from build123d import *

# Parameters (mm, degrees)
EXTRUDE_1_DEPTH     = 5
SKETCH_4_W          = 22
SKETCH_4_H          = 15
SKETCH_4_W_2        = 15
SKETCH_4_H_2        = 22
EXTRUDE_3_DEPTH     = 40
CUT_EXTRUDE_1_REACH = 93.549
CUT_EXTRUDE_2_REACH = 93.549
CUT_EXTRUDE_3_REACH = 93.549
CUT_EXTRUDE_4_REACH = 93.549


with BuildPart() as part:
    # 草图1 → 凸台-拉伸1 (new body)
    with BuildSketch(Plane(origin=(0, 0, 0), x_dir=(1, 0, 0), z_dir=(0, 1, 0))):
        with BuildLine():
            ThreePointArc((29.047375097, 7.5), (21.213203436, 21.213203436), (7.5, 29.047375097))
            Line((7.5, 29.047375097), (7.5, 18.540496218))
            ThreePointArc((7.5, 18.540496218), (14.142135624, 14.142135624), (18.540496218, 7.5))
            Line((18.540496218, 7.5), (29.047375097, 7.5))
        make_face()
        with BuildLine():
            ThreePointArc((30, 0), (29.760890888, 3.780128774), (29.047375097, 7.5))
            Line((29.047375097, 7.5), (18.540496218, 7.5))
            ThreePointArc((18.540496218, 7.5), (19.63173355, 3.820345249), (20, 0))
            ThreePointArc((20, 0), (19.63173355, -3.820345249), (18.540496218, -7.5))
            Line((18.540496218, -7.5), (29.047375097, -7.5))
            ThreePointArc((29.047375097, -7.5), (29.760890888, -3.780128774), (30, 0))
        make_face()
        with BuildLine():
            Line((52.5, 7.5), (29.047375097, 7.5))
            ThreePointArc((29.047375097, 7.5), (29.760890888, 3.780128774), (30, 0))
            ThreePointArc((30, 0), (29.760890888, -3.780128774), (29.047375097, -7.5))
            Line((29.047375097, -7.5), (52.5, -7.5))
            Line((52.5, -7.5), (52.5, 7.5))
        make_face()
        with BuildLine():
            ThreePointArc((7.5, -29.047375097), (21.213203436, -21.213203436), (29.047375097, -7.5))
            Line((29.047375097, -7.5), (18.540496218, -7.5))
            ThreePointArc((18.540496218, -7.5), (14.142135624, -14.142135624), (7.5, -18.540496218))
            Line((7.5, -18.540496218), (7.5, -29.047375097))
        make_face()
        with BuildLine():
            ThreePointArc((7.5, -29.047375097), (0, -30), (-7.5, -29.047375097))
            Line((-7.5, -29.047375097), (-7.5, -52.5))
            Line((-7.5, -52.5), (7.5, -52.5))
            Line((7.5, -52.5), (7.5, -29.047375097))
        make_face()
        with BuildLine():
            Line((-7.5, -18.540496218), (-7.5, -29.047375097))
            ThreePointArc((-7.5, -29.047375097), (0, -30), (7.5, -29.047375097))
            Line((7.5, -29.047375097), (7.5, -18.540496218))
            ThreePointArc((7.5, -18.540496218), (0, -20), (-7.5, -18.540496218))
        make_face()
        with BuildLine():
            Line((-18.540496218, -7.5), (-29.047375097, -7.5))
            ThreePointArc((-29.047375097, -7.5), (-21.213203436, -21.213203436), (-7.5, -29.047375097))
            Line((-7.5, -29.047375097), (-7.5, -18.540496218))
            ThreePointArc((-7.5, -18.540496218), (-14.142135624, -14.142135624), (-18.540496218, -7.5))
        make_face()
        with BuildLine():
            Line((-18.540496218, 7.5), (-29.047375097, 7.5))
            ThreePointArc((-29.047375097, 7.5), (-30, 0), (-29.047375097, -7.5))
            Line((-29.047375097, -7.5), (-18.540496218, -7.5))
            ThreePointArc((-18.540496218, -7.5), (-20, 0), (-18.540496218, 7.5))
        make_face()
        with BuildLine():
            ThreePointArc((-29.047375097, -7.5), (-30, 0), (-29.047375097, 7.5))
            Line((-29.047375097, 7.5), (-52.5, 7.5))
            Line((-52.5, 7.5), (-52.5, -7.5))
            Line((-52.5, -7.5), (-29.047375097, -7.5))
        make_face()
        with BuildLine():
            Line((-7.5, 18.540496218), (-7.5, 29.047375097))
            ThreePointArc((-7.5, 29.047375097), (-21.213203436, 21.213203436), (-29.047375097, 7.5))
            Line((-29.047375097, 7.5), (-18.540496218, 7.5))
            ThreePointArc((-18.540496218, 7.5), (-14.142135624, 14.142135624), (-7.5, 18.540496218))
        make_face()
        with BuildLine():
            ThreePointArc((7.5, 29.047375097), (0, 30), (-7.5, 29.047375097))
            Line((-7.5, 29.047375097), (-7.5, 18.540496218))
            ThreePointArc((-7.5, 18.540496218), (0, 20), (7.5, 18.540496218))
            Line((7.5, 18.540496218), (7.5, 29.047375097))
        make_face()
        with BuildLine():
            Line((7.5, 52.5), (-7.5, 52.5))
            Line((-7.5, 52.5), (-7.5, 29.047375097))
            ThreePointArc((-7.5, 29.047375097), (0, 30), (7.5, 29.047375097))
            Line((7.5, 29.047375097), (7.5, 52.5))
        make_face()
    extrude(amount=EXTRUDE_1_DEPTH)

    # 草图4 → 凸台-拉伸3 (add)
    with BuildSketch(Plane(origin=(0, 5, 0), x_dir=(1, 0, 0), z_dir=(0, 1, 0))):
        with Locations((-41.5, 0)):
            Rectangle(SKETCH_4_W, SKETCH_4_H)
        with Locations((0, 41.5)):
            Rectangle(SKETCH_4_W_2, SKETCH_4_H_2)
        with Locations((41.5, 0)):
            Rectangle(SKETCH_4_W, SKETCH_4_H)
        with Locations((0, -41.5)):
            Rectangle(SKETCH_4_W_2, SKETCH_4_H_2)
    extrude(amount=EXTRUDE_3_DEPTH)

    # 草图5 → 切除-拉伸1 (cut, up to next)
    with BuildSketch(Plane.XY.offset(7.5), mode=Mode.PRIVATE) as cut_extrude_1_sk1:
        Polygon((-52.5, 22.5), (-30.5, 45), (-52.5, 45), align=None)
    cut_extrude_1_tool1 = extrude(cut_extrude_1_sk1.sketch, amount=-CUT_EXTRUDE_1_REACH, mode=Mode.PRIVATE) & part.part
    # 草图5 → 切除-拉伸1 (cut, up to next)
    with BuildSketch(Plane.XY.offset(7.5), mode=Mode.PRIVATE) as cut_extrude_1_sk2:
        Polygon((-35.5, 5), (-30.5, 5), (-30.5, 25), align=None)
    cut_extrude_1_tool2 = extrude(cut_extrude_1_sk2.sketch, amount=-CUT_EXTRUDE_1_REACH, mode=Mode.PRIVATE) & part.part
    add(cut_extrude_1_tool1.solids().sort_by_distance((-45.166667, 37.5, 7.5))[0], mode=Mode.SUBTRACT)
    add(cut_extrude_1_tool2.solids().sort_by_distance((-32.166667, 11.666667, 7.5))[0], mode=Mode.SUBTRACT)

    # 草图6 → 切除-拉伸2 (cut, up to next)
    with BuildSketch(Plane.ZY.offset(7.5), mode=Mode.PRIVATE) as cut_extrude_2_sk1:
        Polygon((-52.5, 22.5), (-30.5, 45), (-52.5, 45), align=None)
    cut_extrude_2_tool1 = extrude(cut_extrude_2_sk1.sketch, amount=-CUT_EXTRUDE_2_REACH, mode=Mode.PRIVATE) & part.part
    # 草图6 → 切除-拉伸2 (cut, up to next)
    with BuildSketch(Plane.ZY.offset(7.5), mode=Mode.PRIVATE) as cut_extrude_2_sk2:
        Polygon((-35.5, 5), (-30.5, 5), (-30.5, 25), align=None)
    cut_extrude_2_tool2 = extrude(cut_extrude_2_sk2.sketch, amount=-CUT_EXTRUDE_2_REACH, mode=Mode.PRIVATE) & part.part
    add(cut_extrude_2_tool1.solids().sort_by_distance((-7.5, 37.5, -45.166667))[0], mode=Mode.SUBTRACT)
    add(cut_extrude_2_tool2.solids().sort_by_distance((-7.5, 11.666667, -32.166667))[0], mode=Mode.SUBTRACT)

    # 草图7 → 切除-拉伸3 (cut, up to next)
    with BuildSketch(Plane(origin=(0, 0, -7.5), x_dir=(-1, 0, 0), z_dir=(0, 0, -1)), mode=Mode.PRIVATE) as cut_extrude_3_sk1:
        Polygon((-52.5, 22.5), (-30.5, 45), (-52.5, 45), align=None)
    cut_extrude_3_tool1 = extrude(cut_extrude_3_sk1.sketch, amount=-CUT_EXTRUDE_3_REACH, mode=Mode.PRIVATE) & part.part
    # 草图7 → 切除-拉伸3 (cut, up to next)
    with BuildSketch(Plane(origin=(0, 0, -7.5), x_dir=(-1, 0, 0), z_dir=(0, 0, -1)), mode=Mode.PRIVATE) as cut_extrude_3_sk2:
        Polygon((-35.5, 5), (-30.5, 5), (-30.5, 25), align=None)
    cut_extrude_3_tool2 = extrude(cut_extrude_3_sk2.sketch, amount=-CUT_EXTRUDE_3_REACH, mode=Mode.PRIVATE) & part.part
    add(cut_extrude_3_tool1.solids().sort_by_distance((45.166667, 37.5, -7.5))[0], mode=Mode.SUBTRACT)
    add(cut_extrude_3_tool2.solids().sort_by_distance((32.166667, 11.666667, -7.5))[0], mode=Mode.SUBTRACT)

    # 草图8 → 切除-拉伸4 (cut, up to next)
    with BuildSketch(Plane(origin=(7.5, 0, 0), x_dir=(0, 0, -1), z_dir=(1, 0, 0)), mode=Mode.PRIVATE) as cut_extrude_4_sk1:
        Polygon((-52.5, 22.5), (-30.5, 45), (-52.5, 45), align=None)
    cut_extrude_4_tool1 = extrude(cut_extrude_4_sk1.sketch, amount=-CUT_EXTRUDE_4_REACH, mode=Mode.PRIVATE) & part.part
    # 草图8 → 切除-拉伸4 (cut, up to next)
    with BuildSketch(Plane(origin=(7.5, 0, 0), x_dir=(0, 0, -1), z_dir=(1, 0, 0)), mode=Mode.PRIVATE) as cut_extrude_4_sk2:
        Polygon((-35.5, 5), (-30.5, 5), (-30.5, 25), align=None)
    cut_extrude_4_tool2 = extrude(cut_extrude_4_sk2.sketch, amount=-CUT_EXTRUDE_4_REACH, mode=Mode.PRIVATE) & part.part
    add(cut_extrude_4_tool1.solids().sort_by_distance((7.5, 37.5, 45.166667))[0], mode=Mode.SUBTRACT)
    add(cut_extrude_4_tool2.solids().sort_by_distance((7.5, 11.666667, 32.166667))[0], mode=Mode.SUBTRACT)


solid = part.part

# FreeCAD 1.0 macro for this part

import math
import FreeCAD as App
import Part
import Sketcher
Q = App.Units.Quantity


def add_polygon(sketch, points):
    """Adds a closed chain of lines whose ends are joined by coincident constraints."""
    first, n = sketch.GeometryCount, len(points)
    for a, b in zip(points, points[1:] + points[:1]):
        sketch.addGeometry(Part.LineSegment(App.Vector(*a, 0), App.Vector(*b, 0)), False)
    for i in range(n):
        sketch.addConstraint(Sketcher.Constraint("Coincident", first + i, 2, first + (i + 1) % n, 1))

doc = App.newDocument("Part")
body = doc.addObject("PartDesign::Body", "Body")

# Sketch on XZ plane
sketch1 = doc.addObject("Sketcher::SketchObject", "Sketch")
body.addObject(sketch1)
sketch1.AttachmentSupport = (doc.XZ_Plane, [""])
sketch1.MapMode = "FlatFace"
sketch1.addGeometry([
    Part.ArcOfCircle(Part.Circle(App.Vector(0, 0, 0), App.Vector(0, 0, 1), 30), math.radians(-76), math.radians(-14)),  # 0
    Part.LineSegment(App.Vector(8, -29, 0), App.Vector(8, -52, 0)),  # 1
    Part.LineSegment(App.Vector(8, -52, 0), App.Vector(-8, -52, 0)),  # 2
    Part.LineSegment(App.Vector(-8, -52, 0), App.Vector(-8, -29, 0)),  # 3
    Part.ArcOfCircle(Part.Circle(App.Vector(0, 0, 0), App.Vector(0, 0, 1), 30), math.radians(-166), math.radians(-104)),  # 4
    Part.LineSegment(App.Vector(-29, -8, 0), App.Vector(-52, -8, 0)),  # 5
    Part.LineSegment(App.Vector(-52, -8, 0), App.Vector(-52, 8, 0)),  # 6
    Part.LineSegment(App.Vector(-52, 8, 0), App.Vector(-29, 8, 0)),  # 7
    Part.ArcOfCircle(Part.Circle(App.Vector(0, 0, 0), App.Vector(0, 0, 1), 30), math.radians(104), math.radians(166)),  # 8
    Part.LineSegment(App.Vector(-8, 29, 0), App.Vector(-8, 52, 0)),  # 9
    Part.LineSegment(App.Vector(-8, 52, 0), App.Vector(8, 52, 0)),  # 10
    Part.LineSegment(App.Vector(8, 52, 0), App.Vector(8, 29, 0)),  # 11
    Part.ArcOfCircle(Part.Circle(App.Vector(0, 0, 0), App.Vector(0, 0, 1), 30), math.radians(14), math.radians(76)),  # 12
    Part.LineSegment(App.Vector(29, 8, 0), App.Vector(52, 8, 0)),  # 13
    Part.LineSegment(App.Vector(52, 8, 0), App.Vector(52, -8, 0)),  # 14
    Part.LineSegment(App.Vector(52, -8, 0), App.Vector(29, -8, 0)),  # 15
    Part.ArcOfCircle(Part.Circle(App.Vector(0, 0, 0), App.Vector(0, 0, 1), 20), math.radians(-68), math.radians(-22)),  # 16
    Part.ArcOfCircle(Part.Circle(App.Vector(0, 0, 0), App.Vector(0, 0, 1), 20), math.radians(-22), math.radians(0)),  # 17
    Part.ArcOfCircle(Part.Circle(App.Vector(0, 0, 0), App.Vector(0, 0, 1), 20), math.radians(0), math.radians(22)),  # 18
    Part.ArcOfCircle(Part.Circle(App.Vector(0, 0, 0), App.Vector(0, 0, 1), 20), math.radians(22), math.radians(68)),  # 19
    Part.ArcOfCircle(Part.Circle(App.Vector(0, 0, 0), App.Vector(0, 0, 1), 20), math.radians(68), math.radians(112)),  # 20
    Part.ArcOfCircle(Part.Circle(App.Vector(0, 0, 0), App.Vector(0, 0, 1), 20), math.radians(112), math.radians(158)),  # 21
    Part.ArcOfCircle(Part.Circle(App.Vector(0, 0, 0), App.Vector(0, 0, 1), 20), math.radians(158), math.radians(202)),  # 22
    Part.ArcOfCircle(Part.Circle(App.Vector(0, 0, 0), App.Vector(0, 0, 1), 20), math.radians(-158), math.radians(-112)),  # 23
    Part.ArcOfCircle(Part.Circle(App.Vector(0, 0, 0), App.Vector(0, 0, 1), 20), math.radians(-112), math.radians(-68)),  # 24
], False)
sketch1.addConstraint([
    Sketcher.Constraint("Coincident", 0, 1, 1, 1),
    Sketcher.Constraint("Coincident", 1, 2, 2, 1),
    Sketcher.Constraint("Coincident", 2, 2, 3, 1),
    Sketcher.Constraint("Coincident", 3, 2, 4, 2),
    Sketcher.Constraint("Coincident", 4, 1, 5, 1),
    Sketcher.Constraint("Coincident", 5, 2, 6, 1),
    Sketcher.Constraint("Coincident", 6, 2, 7, 1),
    Sketcher.Constraint("Coincident", 7, 2, 8, 2),
    Sketcher.Constraint("Coincident", 8, 1, 9, 1),
    Sketcher.Constraint("Coincident", 9, 2, 10, 1),
    Sketcher.Constraint("Coincident", 10, 2, 11, 1),
    Sketcher.Constraint("Coincident", 11, 2, 12, 2),
    Sketcher.Constraint("Coincident", 12, 1, 13, 1),
    Sketcher.Constraint("Coincident", 13, 2, 14, 1),
    Sketcher.Constraint("Coincident", 14, 2, 15, 1),
    Sketcher.Constraint("Coincident", 15, 2, 0, 2),
    Sketcher.Constraint("Tangent", 16, 2, 17, 1),
    Sketcher.Constraint("Tangent", 17, 2, 18, 1),
    Sketcher.Constraint("Tangent", 18, 2, 19, 1),
    Sketcher.Constraint("Tangent", 19, 2, 20, 1),
    Sketcher.Constraint("Tangent", 20, 2, 21, 1),
    Sketcher.Constraint("Tangent", 21, 2, 22, 1),
    Sketcher.Constraint("Tangent", 22, 2, 23, 1),
    Sketcher.Constraint("Tangent", 23, 2, 24, 1),
    Sketcher.Constraint("Tangent", 24, 2, 16, 1),
    Sketcher.Constraint("Vertical", 1),
    Sketcher.Constraint("Horizontal", 2),
    Sketcher.Constraint("Vertical", 3),
    Sketcher.Constraint("Horizontal", 5),
    Sketcher.Constraint("Vertical", 6),
    Sketcher.Constraint("Horizontal", 7),
    Sketcher.Constraint("Vertical", 9),
    Sketcher.Constraint("Horizontal", 10),
    Sketcher.Constraint("Vertical", 11),
    Sketcher.Constraint("Horizontal", 13),
    Sketcher.Constraint("Vertical", 14),
    Sketcher.Constraint("Horizontal", 15),
    Sketcher.Constraint("Coincident", 0, 3, -1, 1),
    Sketcher.Constraint("Coincident", 4, 3, -1, 1),
    Sketcher.Constraint("Coincident", 8, 3, -1, 1),
    Sketcher.Constraint("Coincident", 12, 3, -1, 1),
    Sketcher.Constraint("Coincident", 16, 3, -1, 1),
    Sketcher.Constraint("Coincident", 18, 3, -1, 1),
    Sketcher.Constraint("Coincident", 20, 3, -1, 1),
    Sketcher.Constraint("Coincident", 22, 3, -1, 1),
    Sketcher.Constraint("Equal", 0, 4),
    Sketcher.Constraint("Equal", 4, 8),
    Sketcher.Constraint("Equal", 8, 12),
    Sketcher.Constraint("Symmetric", 1, 2, 9, 2, -1, 1),
    Sketcher.Constraint("Symmetric", 5, 2, 13, 2, -1, 1),
    Sketcher.Constraint("PointOnObject", 17, 2, -1),
    Sketcher.Constraint("Horizontal", 0, 1, 3, 2),
    Sketcher.Constraint("Horizontal", 8, 1, 11, 2),
    Sketcher.Constraint("Horizontal", 7, 2, 12, 1),
    Sketcher.Constraint("Horizontal", 5, 2, 14, 2),
    Sketcher.Constraint("Horizontal", 15, 2, 16, 2),
    Sketcher.Constraint("Horizontal", 13, 2, 18, 2),
    Sketcher.Constraint("Horizontal", 19, 2, 20, 2),
    Sketcher.Constraint("Horizontal", 18, 2, 21, 2),
    Sketcher.Constraint("Horizontal", 16, 2, 22, 2),
    Sketcher.Constraint("Horizontal", 23, 2, 24, 2),
    Sketcher.Constraint("Vertical", 11, 2, 19, 2),
    Sketcher.Constraint("Vertical", 20, 2, 23, 2),
    Sketcher.Constraint("Equal", 15, 1),
    Sketcher.Constraint("Equal", 10, 6),
    Sketcher.Constraint("Radius", 0, Q("30 mm")),
    Sketcher.Constraint("Radius", 16, Q("20 mm")),
    Sketcher.Constraint("DistanceX", 2, 2, 2, 1, Q("15 mm")),
    Sketcher.Constraint("DistanceX", 5, 2, 3, 2, Q("45 mm")),
])
pad1 = doc.addObject("PartDesign::Pad", "Pad")
body.addObject(pad1)
pad1.Profile = sketch1
pad1.Length = 5
pad1.Reversed = True

# Sketch on XZ plane
sketch2 = doc.addObject("Sketcher::SketchObject", "Sketch001")
body.addObject(sketch2)
sketch2.AttachmentSupport = (doc.XZ_Plane, [""])
sketch2.MapMode = "FlatFace"
sketch2.AttachmentOffset = App.Placement(App.Vector(0, 0, -5), App.Rotation())
add_polygon(sketch2, [(-52, -8), (-52, 8), (-30, 8), (-30, -8)])  # lines 0-3
add_polygon(sketch2, [(-8, -52), (-8, -30), (8, -30), (8, -52)])  # lines 4-7
add_polygon(sketch2, [(30, -8), (30, 8), (52, 8), (52, -8)])  # lines 8-11
add_polygon(sketch2, [(-8, 30), (-8, 52), (8, 52), (8, 30)])  # lines 12-15
sketch2.addConstraint([
    Sketcher.Constraint("Vertical", 0),
    Sketcher.Constraint("Horizontal", 1),
    Sketcher.Constraint("Vertical", 2),
    Sketcher.Constraint("Horizontal", 3),
    Sketcher.Constraint("Vertical", 4),
    Sketcher.Constraint("Horizontal", 5),
    Sketcher.Constraint("Vertical", 6),
    Sketcher.Constraint("Horizontal", 7),
    Sketcher.Constraint("Vertical", 8),
    Sketcher.Constraint("Horizontal", 9),
    Sketcher.Constraint("Vertical", 10),
    Sketcher.Constraint("Horizontal", 11),
    Sketcher.Constraint("Vertical", 12),
    Sketcher.Constraint("Horizontal", 13),
    Sketcher.Constraint("Vertical", 14),
    Sketcher.Constraint("Horizontal", 15),
    Sketcher.Constraint("Symmetric", 2, 2, 8, 2, -1, 1),
    Sketcher.Constraint("Symmetric", 0, 2, 10, 2, -1, 1),
    Sketcher.Constraint("Symmetric", 6, 2, 12, 2, -1, 1),
    Sketcher.Constraint("Symmetric", 4, 2, 14, 2, -1, 1),
    Sketcher.Constraint("Horizontal", 1, 2, 8, 2),
    Sketcher.Constraint("Vertical", 7, 2, 12, 2),
    Sketcher.Constraint("Equal", 15, 0),
    Sketcher.Constraint("Equal", 11, 4),
    Sketcher.Constraint("DistanceX", 1, 1, 1, 2, Q("22 mm")),
    Sketcher.Constraint("DistanceX", 5, 1, 5, 2, Q("15 mm")),
    Sketcher.Constraint("DistanceX", 2, 2, 4, 2, Q("23 mm")),
    Sketcher.Constraint("DistanceY", 4, 2, 2, 2, Q("23 mm")),
])
pad2 = doc.addObject("PartDesign::Pad", "Pad001")
body.addObject(pad2)
pad2.Profile = sketch2
pad2.Length = 40
pad2.Reversed = True

# Sketch on XY plane
sketch3 = doc.addObject("Sketcher::SketchObject", "Sketch002")
body.addObject(sketch3)
sketch3.AttachmentSupport = (doc.XY_Plane, [""])
sketch3.MapMode = "FlatFace"
sketch3.AttachmentOffset = App.Placement(App.Vector(0, 0, 7.5), App.Rotation())
add_polygon(sketch3, [(-52, 22), (-30, 45), (-52, 45)])  # lines 0-2
sketch3.addConstraint([
    Sketcher.Constraint("Horizontal", 1),
    Sketcher.Constraint("Vertical", 2),
    Sketcher.Constraint("DistanceX", 1, 2, 1, 1, Q("22 mm")),
    Sketcher.Constraint("DistanceY", 2, 2, 2, 1, Q("22.5 mm")),
    Sketcher.Constraint("DistanceY", -1, 1, 0, 2, Q("45 mm")),
    Sketcher.Constraint("DistanceX", 0, 2, -1, 1, Q("30.5 mm")),
])
pocket1 = doc.addObject("PartDesign::Pocket", "Pocket")
body.addObject(pocket1)
pocket1.Profile = sketch3
pocket1.Type = "UpToFirst"

# Sketch on XY plane
sketch4 = doc.addObject("Sketcher::SketchObject", "Sketch003")
body.addObject(sketch4)
sketch4.AttachmentSupport = (doc.XY_Plane, [""])
sketch4.MapMode = "FlatFace"
sketch4.AttachmentOffset = App.Placement(App.Vector(0, 0, 7.5), App.Rotation())
add_polygon(sketch4, [(-36, 5), (-30, 5), (-30, 25)])  # lines 0-2
sketch4.addConstraint([
    Sketcher.Constraint("Horizontal", 0),
    Sketcher.Constraint("Vertical", 1),
    Sketcher.Constraint("DistanceX", 0, 1, 0, 2, Q("5 mm")),
    Sketcher.Constraint("DistanceY", 1, 1, 1, 2, Q("20 mm")),
    Sketcher.Constraint("DistanceY", -1, 1, 0, 2, Q("5 mm")),
    Sketcher.Constraint("DistanceX", 0, 2, -1, 1, Q("30.5 mm")),
])
pocket2 = doc.addObject("PartDesign::Pocket", "Pocket001")
body.addObject(pocket2)
pocket2.Profile = sketch4
pocket2.Type = "UpToFirst"

# Sketch on YZ plane
sketch5 = doc.addObject("Sketcher::SketchObject", "Sketch004")
body.addObject(sketch5)
sketch5.AttachmentSupport = (doc.YZ_Plane, [""])
sketch5.MapMode = "FlatFace"
sketch5.AttachmentOffset = App.Placement(App.Vector(0, 0, -7.5), App.Rotation())
add_polygon(sketch5, [(22, -52), (45, -30), (45, -52)])  # lines 0-2
sketch5.addConstraint([
    Sketcher.Constraint("Vertical", 1),
    Sketcher.Constraint("Horizontal", 2),
    Sketcher.Constraint("DistanceY", 1, 2, 1, 1, Q("22 mm")),
    Sketcher.Constraint("DistanceX", 2, 2, 2, 1, Q("22.5 mm")),
    Sketcher.Constraint("DistanceX", -1, 1, 0, 2, Q("45 mm")),
    Sketcher.Constraint("DistanceY", 0, 2, -1, 1, Q("30.5 mm")),
])
pocket3 = doc.addObject("PartDesign::Pocket", "Pocket002")
body.addObject(pocket3)
pocket3.Profile = sketch5
pocket3.Type = "UpToFirst"
pocket3.Reversed = True

# Sketch on YZ plane
sketch6 = doc.addObject("Sketcher::SketchObject", "Sketch005")
body.addObject(sketch6)
sketch6.AttachmentSupport = (doc.YZ_Plane, [""])
sketch6.MapMode = "FlatFace"
sketch6.AttachmentOffset = App.Placement(App.Vector(0, 0, -7.5), App.Rotation())
add_polygon(sketch6, [(5, -36), (5, -30), (25, -30)])  # lines 0-2
sketch6.addConstraint([
    Sketcher.Constraint("Vertical", 0),
    Sketcher.Constraint("Horizontal", 1),
    Sketcher.Constraint("DistanceX", 1, 1, 1, 2, Q("20 mm")),
    Sketcher.Constraint("DistanceY", 0, 1, 0, 2, Q("5 mm")),
    Sketcher.Constraint("DistanceX", -1, 1, 0, 2, Q("5 mm")),
    Sketcher.Constraint("DistanceY", 0, 2, -1, 1, Q("30.5 mm")),
])
pocket4 = doc.addObject("PartDesign::Pocket", "Pocket003")
body.addObject(pocket4)
pocket4.Profile = sketch6
pocket4.Type = "UpToFirst"
pocket4.Reversed = True

# Sketch on XY plane
sketch7 = doc.addObject("Sketcher::SketchObject", "Sketch006")
body.addObject(sketch7)
sketch7.AttachmentSupport = (doc.XY_Plane, [""])
sketch7.MapMode = "FlatFace"
sketch7.AttachmentOffset = App.Placement(App.Vector(0, 0, -7.5), App.Rotation())
add_polygon(sketch7, [(52, 22), (30, 45), (52, 45)])  # lines 0-2
sketch7.addConstraint([
    Sketcher.Constraint("Horizontal", 1),
    Sketcher.Constraint("Vertical", 2),
    Sketcher.Constraint("DistanceX", 1, 1, 1, 2, Q("22 mm")),
    Sketcher.Constraint("DistanceY", 2, 2, 2, 1, Q("22.5 mm")),
    Sketcher.Constraint("DistanceY", -1, 1, 0, 2, Q("45 mm")),
    Sketcher.Constraint("DistanceX", -1, 1, 0, 2, Q("30.5 mm")),
])
pocket5 = doc.addObject("PartDesign::Pocket", "Pocket004")
body.addObject(pocket5)
pocket5.Profile = sketch7
pocket5.Type = "UpToFirst"
pocket5.Reversed = True

# Sketch on XY plane
sketch8 = doc.addObject("Sketcher::SketchObject", "Sketch007")
body.addObject(sketch8)
sketch8.AttachmentSupport = (doc.XY_Plane, [""])
sketch8.MapMode = "FlatFace"
sketch8.AttachmentOffset = App.Placement(App.Vector(0, 0, -7.5), App.Rotation())
add_polygon(sketch8, [(36, 5), (30, 5), (30, 25)])  # lines 0-2
sketch8.addConstraint([
    Sketcher.Constraint("Horizontal", 0),
    Sketcher.Constraint("Vertical", 1),
    Sketcher.Constraint("DistanceX", 0, 2, 0, 1, Q("5 mm")),
    Sketcher.Constraint("DistanceY", 1, 1, 1, 2, Q("20 mm")),
    Sketcher.Constraint("DistanceY", -1, 1, 0, 2, Q("5 mm")),
    Sketcher.Constraint("DistanceX", -1, 1, 0, 2, Q("30.5 mm")),
])
pocket6 = doc.addObject("PartDesign::Pocket", "Pocket005")
body.addObject(pocket6)
pocket6.Profile = sketch8
pocket6.Type = "UpToFirst"
pocket6.Reversed = True

# Sketch on YZ plane
sketch9 = doc.addObject("Sketcher::SketchObject", "Sketch008")
body.addObject(sketch9)
sketch9.AttachmentSupport = (doc.YZ_Plane, [""])
sketch9.MapMode = "FlatFace"
sketch9.AttachmentOffset = App.Placement(App.Vector(0, 0, 7.5), App.Rotation())
add_polygon(sketch9, [(22, 52), (45, 30), (45, 52)])  # lines 0-2
sketch9.addConstraint([
    Sketcher.Constraint("Vertical", 1),
    Sketcher.Constraint("Horizontal", 2),
    Sketcher.Constraint("DistanceY", 1, 1, 1, 2, Q("22 mm")),
    Sketcher.Constraint("DistanceX", 2, 2, 2, 1, Q("22.5 mm")),
    Sketcher.Constraint("DistanceX", -1, 1, 0, 2, Q("45 mm")),
    Sketcher.Constraint("DistanceY", -1, 1, 0, 2, Q("30.5 mm")),
])
pocket7 = doc.addObject("PartDesign::Pocket", "Pocket006")
body.addObject(pocket7)
pocket7.Profile = sketch9
pocket7.Type = "UpToFirst"

# Sketch on YZ plane
sketch10 = doc.addObject("Sketcher::SketchObject", "Sketch009")
body.addObject(sketch10)
sketch10.AttachmentSupport = (doc.YZ_Plane, [""])
sketch10.MapMode = "FlatFace"
sketch10.AttachmentOffset = App.Placement(App.Vector(0, 0, 7.5), App.Rotation())
add_polygon(sketch10, [(5, 36), (5, 30), (25, 30)])  # lines 0-2
sketch10.addConstraint([
    Sketcher.Constraint("Vertical", 0),
    Sketcher.Constraint("Horizontal", 1),
    Sketcher.Constraint("DistanceX", 1, 1, 1, 2, Q("20 mm")),
    Sketcher.Constraint("DistanceY", 0, 2, 0, 1, Q("5 mm")),
    Sketcher.Constraint("DistanceX", -1, 1, 0, 2, Q("5 mm")),
    Sketcher.Constraint("DistanceY", -1, 1, 0, 2, Q("30.5 mm")),
])
pocket8 = doc.addObject("PartDesign::Pocket", "Pocket007")
body.addObject(pocket8)
pocket8.Profile = sketch10
pocket8.Type = "UpToFirst"

doc.recompute()
